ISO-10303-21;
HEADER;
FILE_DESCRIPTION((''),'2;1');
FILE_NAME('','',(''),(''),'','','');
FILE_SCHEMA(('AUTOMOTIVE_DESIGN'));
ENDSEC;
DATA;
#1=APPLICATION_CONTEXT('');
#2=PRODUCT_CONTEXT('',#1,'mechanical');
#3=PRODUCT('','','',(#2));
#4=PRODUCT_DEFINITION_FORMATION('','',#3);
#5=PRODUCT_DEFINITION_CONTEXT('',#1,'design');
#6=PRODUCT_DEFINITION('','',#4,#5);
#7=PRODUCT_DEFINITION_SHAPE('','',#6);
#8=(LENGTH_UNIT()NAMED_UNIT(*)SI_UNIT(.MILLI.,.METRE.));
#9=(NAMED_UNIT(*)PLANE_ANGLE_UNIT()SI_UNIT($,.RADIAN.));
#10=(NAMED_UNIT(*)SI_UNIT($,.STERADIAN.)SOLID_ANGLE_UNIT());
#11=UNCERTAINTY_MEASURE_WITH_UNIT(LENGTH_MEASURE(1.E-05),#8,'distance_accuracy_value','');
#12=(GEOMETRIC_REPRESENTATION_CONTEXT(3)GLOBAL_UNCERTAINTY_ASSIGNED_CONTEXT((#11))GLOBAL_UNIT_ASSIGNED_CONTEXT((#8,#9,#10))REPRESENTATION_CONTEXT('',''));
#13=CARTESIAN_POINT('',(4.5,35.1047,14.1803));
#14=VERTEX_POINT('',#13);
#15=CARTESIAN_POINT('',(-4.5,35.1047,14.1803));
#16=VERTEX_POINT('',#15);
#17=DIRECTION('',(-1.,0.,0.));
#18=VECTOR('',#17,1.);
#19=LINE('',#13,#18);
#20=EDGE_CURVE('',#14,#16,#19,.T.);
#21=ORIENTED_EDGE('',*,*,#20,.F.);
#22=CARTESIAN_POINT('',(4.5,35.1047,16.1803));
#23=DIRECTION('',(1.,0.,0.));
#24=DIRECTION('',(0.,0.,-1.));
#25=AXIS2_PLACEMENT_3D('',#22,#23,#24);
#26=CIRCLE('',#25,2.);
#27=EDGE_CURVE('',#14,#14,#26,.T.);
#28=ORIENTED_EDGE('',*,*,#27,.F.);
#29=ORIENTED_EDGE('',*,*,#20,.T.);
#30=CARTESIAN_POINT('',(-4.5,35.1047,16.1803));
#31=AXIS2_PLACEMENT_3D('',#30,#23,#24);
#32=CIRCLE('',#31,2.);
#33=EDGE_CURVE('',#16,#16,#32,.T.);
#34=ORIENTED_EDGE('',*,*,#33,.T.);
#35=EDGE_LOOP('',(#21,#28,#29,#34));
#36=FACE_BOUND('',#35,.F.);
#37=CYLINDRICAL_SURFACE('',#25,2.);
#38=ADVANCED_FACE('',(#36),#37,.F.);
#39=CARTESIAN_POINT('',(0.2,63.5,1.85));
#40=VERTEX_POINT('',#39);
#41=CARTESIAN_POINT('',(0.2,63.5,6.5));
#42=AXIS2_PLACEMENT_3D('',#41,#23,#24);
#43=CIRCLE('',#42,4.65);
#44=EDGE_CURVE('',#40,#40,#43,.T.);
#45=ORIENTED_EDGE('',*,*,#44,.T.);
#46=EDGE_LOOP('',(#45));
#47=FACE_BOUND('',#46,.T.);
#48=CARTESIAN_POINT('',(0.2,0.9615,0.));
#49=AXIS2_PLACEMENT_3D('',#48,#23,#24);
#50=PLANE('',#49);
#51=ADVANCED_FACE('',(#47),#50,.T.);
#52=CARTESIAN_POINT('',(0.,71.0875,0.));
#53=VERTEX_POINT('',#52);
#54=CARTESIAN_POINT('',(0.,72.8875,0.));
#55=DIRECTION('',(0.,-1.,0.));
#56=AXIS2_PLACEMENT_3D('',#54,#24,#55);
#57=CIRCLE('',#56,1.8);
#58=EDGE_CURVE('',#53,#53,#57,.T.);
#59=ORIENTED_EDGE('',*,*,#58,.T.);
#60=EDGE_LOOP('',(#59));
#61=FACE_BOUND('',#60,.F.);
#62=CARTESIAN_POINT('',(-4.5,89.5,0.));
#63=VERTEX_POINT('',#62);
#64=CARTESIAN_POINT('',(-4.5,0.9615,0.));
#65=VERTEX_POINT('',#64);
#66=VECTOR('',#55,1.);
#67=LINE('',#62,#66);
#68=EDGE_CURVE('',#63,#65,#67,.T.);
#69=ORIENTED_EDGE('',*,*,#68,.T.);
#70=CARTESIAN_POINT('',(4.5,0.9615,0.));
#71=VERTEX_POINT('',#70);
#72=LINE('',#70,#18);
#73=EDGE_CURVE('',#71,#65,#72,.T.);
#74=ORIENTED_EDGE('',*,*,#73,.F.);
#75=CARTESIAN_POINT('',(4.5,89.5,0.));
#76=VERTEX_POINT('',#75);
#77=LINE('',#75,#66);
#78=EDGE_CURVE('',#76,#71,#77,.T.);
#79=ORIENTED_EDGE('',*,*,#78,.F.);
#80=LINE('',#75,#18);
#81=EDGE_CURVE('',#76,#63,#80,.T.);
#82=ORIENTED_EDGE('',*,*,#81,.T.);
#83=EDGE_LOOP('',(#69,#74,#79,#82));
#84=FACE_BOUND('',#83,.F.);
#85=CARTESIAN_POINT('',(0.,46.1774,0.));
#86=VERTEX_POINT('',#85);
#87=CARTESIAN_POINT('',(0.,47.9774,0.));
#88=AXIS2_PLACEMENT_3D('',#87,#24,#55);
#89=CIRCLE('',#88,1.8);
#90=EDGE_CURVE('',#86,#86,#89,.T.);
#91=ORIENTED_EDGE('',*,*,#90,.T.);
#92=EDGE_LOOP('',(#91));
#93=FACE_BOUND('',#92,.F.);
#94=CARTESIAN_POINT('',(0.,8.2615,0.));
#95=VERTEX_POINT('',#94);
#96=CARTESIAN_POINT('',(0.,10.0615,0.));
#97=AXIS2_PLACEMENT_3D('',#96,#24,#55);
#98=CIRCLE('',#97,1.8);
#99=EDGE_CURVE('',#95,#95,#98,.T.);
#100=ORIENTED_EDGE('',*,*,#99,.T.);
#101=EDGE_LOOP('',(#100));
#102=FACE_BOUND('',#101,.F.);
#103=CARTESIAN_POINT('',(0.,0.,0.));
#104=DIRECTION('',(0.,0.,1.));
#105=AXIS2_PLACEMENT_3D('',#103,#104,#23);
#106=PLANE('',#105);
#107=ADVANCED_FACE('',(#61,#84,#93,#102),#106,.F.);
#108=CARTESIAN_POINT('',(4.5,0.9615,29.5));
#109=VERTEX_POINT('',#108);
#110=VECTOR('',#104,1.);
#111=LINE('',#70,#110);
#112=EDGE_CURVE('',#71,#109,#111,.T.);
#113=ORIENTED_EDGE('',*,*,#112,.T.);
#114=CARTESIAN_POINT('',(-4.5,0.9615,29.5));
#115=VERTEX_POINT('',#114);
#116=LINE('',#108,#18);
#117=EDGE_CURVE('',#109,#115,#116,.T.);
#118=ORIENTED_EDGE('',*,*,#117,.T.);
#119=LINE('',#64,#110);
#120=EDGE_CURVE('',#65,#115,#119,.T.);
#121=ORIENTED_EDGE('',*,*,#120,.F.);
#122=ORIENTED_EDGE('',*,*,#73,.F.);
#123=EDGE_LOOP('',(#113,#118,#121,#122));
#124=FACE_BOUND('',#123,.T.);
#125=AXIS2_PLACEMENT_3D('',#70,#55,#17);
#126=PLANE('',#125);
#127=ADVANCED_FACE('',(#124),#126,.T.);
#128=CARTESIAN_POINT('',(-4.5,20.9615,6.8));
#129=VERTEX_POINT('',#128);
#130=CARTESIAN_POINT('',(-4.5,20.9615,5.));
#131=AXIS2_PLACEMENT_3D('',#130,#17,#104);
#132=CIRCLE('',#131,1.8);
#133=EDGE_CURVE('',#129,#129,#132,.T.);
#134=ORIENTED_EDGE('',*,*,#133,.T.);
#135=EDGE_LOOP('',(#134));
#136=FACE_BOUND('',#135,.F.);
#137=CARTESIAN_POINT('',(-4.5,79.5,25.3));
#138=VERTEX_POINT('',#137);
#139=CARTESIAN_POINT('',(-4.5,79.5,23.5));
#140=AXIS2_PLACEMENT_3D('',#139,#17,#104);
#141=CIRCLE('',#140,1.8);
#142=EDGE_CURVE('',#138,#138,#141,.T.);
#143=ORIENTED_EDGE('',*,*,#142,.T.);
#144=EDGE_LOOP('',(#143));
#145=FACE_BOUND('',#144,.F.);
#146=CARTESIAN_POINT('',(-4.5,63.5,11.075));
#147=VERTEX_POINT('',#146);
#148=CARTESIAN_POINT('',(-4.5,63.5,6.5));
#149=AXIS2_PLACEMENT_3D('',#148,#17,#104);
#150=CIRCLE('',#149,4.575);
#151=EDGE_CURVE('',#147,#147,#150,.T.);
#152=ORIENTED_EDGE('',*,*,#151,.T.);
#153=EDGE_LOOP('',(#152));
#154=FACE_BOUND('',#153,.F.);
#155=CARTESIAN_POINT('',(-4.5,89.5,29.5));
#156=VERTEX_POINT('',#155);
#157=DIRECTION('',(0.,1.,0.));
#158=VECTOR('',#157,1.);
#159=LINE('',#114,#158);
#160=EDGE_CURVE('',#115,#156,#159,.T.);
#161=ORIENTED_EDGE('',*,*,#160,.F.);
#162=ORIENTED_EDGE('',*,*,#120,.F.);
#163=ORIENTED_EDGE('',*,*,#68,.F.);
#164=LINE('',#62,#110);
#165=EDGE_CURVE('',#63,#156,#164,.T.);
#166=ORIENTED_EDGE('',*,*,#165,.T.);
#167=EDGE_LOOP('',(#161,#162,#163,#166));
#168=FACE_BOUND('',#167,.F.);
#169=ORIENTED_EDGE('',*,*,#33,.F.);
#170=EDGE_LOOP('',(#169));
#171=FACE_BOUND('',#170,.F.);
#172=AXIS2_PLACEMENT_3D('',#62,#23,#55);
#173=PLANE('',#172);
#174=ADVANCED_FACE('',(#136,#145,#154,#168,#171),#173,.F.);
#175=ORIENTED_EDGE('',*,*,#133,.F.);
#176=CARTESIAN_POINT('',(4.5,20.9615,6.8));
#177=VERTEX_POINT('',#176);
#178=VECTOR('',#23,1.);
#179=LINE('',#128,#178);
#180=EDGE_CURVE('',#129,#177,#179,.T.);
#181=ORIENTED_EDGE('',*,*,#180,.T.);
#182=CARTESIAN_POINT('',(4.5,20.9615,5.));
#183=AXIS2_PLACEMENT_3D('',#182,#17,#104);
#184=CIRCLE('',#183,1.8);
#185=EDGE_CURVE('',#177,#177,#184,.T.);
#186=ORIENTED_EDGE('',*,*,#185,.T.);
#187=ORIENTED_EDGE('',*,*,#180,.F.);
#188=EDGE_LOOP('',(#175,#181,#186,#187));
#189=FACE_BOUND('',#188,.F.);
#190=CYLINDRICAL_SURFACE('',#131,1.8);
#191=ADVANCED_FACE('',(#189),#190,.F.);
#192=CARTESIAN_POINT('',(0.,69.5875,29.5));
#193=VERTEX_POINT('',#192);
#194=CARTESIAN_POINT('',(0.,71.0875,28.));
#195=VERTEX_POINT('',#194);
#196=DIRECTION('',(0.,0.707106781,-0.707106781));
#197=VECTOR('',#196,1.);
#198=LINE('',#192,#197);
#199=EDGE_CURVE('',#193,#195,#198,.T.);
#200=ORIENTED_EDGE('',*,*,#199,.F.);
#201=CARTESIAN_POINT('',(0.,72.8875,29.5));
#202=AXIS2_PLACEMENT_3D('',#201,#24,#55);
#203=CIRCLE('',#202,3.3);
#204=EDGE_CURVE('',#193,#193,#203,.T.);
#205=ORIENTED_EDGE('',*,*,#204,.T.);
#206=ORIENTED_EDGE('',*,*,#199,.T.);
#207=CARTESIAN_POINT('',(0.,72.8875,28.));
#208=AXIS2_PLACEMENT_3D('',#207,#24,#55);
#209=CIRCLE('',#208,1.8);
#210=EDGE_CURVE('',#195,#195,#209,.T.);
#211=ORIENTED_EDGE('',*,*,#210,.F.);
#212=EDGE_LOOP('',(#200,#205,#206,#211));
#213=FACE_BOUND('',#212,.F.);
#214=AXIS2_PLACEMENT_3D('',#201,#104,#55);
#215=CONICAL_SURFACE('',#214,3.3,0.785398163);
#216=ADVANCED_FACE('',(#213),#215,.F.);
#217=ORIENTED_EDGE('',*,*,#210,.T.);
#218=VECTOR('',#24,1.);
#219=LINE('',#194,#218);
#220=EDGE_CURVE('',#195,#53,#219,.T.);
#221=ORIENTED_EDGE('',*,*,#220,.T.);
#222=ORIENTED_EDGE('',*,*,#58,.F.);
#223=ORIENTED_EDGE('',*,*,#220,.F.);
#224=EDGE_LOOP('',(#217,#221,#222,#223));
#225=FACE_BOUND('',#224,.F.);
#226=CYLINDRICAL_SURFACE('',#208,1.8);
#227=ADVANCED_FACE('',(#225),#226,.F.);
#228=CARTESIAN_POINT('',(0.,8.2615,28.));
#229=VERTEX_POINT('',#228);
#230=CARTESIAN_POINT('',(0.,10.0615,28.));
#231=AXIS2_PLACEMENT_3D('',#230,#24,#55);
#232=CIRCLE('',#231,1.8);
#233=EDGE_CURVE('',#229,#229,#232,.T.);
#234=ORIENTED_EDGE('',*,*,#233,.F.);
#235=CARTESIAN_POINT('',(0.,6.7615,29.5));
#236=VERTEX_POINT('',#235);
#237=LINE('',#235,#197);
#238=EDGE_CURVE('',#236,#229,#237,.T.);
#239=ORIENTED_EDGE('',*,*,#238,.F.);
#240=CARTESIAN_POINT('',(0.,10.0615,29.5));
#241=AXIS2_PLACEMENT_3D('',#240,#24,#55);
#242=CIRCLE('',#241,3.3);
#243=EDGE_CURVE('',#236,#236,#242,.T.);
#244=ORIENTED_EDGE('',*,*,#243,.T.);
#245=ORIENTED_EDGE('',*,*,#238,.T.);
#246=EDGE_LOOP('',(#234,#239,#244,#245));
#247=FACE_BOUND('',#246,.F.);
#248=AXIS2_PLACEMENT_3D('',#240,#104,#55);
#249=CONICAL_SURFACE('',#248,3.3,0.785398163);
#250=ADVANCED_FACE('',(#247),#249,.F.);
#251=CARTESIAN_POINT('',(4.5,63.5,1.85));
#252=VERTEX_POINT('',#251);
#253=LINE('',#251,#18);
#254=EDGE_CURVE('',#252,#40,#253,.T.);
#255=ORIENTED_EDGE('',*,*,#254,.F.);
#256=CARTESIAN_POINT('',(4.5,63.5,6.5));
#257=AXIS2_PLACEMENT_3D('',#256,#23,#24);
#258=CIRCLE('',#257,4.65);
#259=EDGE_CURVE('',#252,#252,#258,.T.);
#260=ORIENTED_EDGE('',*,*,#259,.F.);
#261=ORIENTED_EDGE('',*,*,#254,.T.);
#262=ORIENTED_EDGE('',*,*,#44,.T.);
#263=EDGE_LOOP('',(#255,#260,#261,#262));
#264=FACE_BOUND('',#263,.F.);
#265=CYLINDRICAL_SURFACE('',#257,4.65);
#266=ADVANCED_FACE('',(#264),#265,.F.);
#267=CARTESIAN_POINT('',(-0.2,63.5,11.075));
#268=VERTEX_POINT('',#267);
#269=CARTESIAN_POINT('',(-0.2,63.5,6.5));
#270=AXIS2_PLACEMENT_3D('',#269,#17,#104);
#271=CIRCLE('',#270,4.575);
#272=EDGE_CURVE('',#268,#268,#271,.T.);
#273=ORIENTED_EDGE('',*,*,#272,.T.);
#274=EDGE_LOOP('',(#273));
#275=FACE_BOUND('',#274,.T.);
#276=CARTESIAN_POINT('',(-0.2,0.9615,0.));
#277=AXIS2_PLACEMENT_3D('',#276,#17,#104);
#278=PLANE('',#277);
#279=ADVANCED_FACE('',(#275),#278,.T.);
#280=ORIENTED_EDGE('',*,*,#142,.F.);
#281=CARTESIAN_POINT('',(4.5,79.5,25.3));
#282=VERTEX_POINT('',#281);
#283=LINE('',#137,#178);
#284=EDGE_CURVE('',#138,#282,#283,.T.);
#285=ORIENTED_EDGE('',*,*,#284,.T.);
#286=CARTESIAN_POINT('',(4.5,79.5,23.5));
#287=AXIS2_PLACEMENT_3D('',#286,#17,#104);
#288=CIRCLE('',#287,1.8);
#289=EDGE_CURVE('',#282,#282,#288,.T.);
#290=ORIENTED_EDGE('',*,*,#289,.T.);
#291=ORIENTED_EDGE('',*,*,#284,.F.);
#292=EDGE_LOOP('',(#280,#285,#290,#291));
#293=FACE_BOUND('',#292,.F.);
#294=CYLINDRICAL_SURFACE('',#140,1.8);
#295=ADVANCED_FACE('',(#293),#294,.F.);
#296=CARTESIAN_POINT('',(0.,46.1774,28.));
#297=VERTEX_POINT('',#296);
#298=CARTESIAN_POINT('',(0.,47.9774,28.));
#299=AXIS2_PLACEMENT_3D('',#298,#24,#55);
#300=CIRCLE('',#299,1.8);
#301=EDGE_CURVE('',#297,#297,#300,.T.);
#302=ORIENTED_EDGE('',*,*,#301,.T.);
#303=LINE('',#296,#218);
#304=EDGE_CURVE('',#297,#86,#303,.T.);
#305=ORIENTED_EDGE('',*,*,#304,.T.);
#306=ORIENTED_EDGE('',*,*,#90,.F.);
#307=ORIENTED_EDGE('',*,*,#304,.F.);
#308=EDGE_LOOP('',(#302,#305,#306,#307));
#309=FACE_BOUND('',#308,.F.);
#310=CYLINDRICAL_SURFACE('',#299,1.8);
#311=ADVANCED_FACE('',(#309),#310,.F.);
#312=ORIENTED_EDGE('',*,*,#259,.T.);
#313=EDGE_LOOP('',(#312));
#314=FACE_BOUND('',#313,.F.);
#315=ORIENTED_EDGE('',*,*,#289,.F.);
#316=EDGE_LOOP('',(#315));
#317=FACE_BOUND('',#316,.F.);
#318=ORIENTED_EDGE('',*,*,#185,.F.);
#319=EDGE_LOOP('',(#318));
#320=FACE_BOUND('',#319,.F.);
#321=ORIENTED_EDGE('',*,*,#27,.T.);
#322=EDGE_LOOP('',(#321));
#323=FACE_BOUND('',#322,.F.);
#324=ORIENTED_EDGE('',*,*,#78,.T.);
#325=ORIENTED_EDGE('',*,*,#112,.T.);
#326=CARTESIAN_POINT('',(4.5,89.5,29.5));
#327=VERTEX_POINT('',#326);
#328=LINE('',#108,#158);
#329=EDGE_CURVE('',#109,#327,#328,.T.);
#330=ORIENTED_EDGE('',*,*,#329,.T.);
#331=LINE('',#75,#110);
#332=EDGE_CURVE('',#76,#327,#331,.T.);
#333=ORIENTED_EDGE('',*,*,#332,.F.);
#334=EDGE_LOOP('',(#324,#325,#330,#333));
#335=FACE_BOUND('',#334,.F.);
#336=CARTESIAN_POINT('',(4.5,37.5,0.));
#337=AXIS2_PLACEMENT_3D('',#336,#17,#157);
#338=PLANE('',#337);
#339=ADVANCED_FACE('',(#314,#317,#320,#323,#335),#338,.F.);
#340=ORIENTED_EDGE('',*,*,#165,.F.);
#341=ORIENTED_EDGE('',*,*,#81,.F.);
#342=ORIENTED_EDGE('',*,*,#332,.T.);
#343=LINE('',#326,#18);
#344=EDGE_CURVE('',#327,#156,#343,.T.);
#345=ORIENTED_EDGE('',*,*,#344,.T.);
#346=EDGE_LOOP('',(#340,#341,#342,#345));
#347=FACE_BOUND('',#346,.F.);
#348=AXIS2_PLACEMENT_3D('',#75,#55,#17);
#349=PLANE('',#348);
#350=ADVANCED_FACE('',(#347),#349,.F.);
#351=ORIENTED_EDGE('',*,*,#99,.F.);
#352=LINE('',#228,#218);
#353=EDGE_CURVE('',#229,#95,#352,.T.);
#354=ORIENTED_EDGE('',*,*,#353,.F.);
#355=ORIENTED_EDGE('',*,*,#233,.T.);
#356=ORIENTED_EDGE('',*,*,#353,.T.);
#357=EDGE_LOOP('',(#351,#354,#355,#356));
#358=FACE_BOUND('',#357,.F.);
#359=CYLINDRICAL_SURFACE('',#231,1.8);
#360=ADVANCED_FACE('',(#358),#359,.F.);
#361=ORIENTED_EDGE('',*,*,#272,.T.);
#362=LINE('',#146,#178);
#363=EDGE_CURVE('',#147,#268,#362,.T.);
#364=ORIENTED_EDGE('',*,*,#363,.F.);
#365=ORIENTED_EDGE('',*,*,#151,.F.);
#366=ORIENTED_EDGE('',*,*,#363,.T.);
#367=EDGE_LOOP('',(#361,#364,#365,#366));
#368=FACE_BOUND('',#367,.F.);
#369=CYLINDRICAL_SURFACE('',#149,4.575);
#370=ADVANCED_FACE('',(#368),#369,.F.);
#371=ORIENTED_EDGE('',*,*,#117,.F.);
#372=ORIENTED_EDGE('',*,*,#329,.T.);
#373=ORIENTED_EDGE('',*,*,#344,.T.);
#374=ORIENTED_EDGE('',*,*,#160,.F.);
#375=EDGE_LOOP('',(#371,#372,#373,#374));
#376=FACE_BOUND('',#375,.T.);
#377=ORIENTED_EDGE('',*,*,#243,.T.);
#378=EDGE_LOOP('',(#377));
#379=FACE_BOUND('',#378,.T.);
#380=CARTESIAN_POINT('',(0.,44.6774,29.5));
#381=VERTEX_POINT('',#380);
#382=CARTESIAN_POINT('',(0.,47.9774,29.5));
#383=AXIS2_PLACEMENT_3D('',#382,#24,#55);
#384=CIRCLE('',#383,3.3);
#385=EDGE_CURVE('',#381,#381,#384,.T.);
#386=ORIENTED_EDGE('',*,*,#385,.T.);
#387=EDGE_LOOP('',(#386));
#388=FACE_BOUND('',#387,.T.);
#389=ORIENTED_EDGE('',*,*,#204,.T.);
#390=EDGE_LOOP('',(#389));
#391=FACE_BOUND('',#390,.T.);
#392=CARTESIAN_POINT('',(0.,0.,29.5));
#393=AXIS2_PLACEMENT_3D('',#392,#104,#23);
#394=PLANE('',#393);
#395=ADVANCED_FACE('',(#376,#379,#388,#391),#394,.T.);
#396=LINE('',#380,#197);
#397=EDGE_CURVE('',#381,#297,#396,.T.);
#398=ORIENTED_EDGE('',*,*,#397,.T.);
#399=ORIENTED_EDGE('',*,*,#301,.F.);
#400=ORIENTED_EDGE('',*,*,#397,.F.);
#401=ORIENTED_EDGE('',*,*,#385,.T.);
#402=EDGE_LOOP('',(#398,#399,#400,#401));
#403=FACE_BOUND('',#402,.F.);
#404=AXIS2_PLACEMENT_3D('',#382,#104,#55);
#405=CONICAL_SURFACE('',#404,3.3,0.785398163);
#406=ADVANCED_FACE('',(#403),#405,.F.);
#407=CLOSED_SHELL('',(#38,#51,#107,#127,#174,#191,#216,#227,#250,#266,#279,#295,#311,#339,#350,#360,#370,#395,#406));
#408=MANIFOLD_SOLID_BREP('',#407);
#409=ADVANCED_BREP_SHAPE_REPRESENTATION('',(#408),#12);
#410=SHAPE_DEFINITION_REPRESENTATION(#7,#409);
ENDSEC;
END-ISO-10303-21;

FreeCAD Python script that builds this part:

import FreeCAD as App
import Part
import Sketcher


def add_polygon(sketch, points):
    """Adds a closed chain of lines whose ends are joined by coincident constraints."""
    first, n = sketch.GeometryCount, len(points)
    for a, b in zip(points, points[1:] + points[:1]):
        sketch.addGeometry(Part.LineSegment(App.Vector(*a, 0), App.Vector(*b, 0)), False)
    for i in range(n):
        sketch.addConstraint(Sketcher.Constraint("Coincident", first + i, 2, first + (i + 1) % n, 1))

doc = App.newDocument("Part")
params = doc.addObject("Spreadsheet::Sheet", "Params")
for row, (alias, value) in enumerate([
    ("sketch1_width", "9 mm"),
    ("pad1_length", "29.5 mm"),
    ("sketch2_diameter", "4 mm"),
    ("sketch3_diameter", "9.3 mm"),
    ("pocket2_length", "4.3 mm"),
    ("sketch4_diameter", "9.15 mm"),
    ("pocket3_length", "4.3 mm"),
    ("sketch5_diameter", "3.6 mm"),
    ("pocket4_length", "9 mm"),
    ("sketch6_diameter", "3.6 mm"),
    ("hole_diameter", "3.6 mm"),
    ("hole_csink_diameter", "6.6 mm"),
], start=1):
    params.set(f"A{row}", alias)
    params.set(f"B{row}", "=" + value)
    params.setAlias(f"B{row}", alias)

body = doc.addObject("PartDesign::Body", "Body")

# Sketch on XY plane
sketch1 = body.newObject("Sketcher::SketchObject", "Sketch")
sketch1.AttachmentSupport = (doc.getObject("XY_Plane"), [""])
sketch1.MapMode = "FlatFace"
add_polygon(sketch1, [(-4, 90), (-4, 1), (4, 1), (4, 90)])  # lines 0-3
sketch1.addConstraint([
    Sketcher.Constraint("Vertical", 0),
    Sketcher.Constraint("Horizontal", 1),
    Sketcher.Constraint("Vertical", 2),
    Sketcher.Constraint("Horizontal", 3),
    Sketcher.Constraint("DistanceX", 1, 1, 1, 2, 9.0),
    Sketcher.Constraint("DistanceX", 0, 2, -1, 1, 4.5),
    Sketcher.Constraint("DistanceY", -1, 1, 2, 2, 89.5),
    Sketcher.Constraint("DistanceY", 0, 2, 0, 1, 88.5385),
])
sketch1.setExpression("Constraints[8]", "Params.sketch1_width")
pad1 = body.newObject("PartDesign::Pad", "Pad")
pad1.Profile = sketch1
pad1.setExpression("Length", "Params.pad1_length")

# Sketch on YZ plane
sketch2 = body.newObject("Sketcher::SketchObject", "Sketch001")
sketch2.AttachmentSupport = (doc.getObject("YZ_Plane"), [""])
sketch2.MapMode = "FlatFace"
sketch2.AttachmentOffset = App.Placement(App.Vector(0, 0, 4.5), App.Rotation())
sketch2.addGeometry(Part.Circle(App.Vector(35.1, 16.2, 0), App.Vector(0, 0, 1), 2), False)
sketch2.addConstraint([
    Sketcher.Constraint("Diameter", 0, 4.0),
    Sketcher.Constraint("DistanceX", -1, 1, 0, 3, 35.1047),
    Sketcher.Constraint("DistanceY", -1, 1, 0, 3, 16.1803),
])
sketch2.setExpression("Constraints[0]", "Params.sketch2_diameter")
pocket1 = body.newObject("PartDesign::Pocket", "Pocket")
pocket1.Profile = sketch2
pocket1.Type = "UpToFirst"

# Sketch on YZ plane
sketch3 = body.newObject("Sketcher::SketchObject", "Sketch002")
sketch3.AttachmentSupport = (doc.getObject("YZ_Plane"), [""])
sketch3.MapMode = "FlatFace"
sketch3.AttachmentOffset = App.Placement(App.Vector(0, 0, 4.5), App.Rotation())
sketch3.addGeometry(Part.Circle(App.Vector(63.5, 6.5, 0), App.Vector(0, 0, 1), 4.7), False)
sketch3.addConstraint([
    Sketcher.Constraint("Diameter", 0, 9.3),
    Sketcher.Constraint("DistanceX", -1, 1, 0, 3, 63.5),
    Sketcher.Constraint("DistanceY", -1, 1, 0, 3, 6.5),
])
sketch3.setExpression("Constraints[0]", "Params.sketch3_diameter")
pocket2 = body.newObject("PartDesign::Pocket", "Pocket001")
pocket2.Profile = sketch3
pocket2.setExpression("Length", "Params.pocket2_length")

# Sketch on YZ plane
sketch4 = body.newObject("Sketcher::SketchObject", "Sketch003")
sketch4.AttachmentSupport = (doc.getObject("YZ_Plane"), [""])
sketch4.MapMode = "FlatFace"
sketch4.AttachmentOffset = App.Placement(App.Vector(0, 0, -4.5), App.Rotation())
sketch4.addGeometry(Part.Circle(App.Vector(63.5, 6.5, 0), App.Vector(0, 0, 1), 4.6), False)
sketch4.addConstraint([
    Sketcher.Constraint("Diameter", 0, 9.15),
    Sketcher.Constraint("DistanceX", -1, 1, 0, 3, 63.5),
    Sketcher.Constraint("DistanceY", -1, 1, 0, 3, 6.5),
])
sketch4.setExpression("Constraints[0]", "Params.sketch4_diameter")
pocket3 = body.newObject("PartDesign::Pocket", "Pocket002")
pocket3.Profile = sketch4
pocket3.setExpression("Length", "Params.pocket3_length")
pocket3.Reversed = True

# Sketch on YZ plane
sketch5 = body.newObject("Sketcher::SketchObject", "Sketch004")
sketch5.AttachmentSupport = (doc.getObject("YZ_Plane"), [""])
sketch5.MapMode = "FlatFace"
sketch5.AttachmentOffset = App.Placement(App.Vector(0, 0, -4.5), App.Rotation())
sketch5.addGeometry([
    Part.Circle(App.Vector(21, 5, 0), App.Vector(0, 0, 1), 1.8),
    Part.Circle(App.Vector(79.5, 23.5, 0), App.Vector(0, 0, 1), 1.8),
], False)
sketch5.addConstraint([
    Sketcher.Constraint("Equal", 0, 1),
    Sketcher.Constraint("Diameter", 0, 3.6),
    Sketcher.Constraint("DistanceY", -1, 1, 0, 3, 5.0),
    Sketcher.Constraint("DistanceX", -1, 1, 1, 3, 79.5),
    Sketcher.Constraint("DistanceY", -1, 1, 1, 3, 23.5),
    Sketcher.Constraint("DistanceX", -1, 1, 0, 3, 20.9615),
])
sketch5.setExpression("Constraints[1]", "Params.sketch5_diameter")
pocket4 = body.newObject("PartDesign::Pocket", "Pocket003")
pocket4.Profile = sketch5
pocket4.setExpression("Length", "Params.pocket4_length")
pocket4.Reversed = True

# Sketch on XY plane
sketch6 = body.newObject("Sketcher::SketchObject", "Sketch005")
sketch6.AttachmentSupport = (doc.getObject("XY_Plane"), [""])
sketch6.MapMode = "FlatFace"
sketch6.AttachmentOffset = App.Placement(App.Vector(0, 0, 29.5), App.Rotation())
sketch6.addGeometry([
    Part.Circle(App.Vector(0, 10.1, 0), App.Vector(0, 0, 1), 1.8),
    Part.Circle(App.Vector(0, 48, 0), App.Vector(0, 0, 1), 1.8),
    Part.Circle(App.Vector(0, 72.9, 0), App.Vector(0, 0, 1), 1.8),
], False)
sketch6.addConstraint([
    Sketcher.Constraint("Equal", 0, 1),
    Sketcher.Constraint("Equal", 1, 2),
    Sketcher.Constraint("PointOnObject", 0, 3, -2),
    Sketcher.Constraint("PointOnObject", 1, 3, -2),
    Sketcher.Constraint("PointOnObject", 2, 3, -2),
    Sketcher.Constraint("Diameter", 0, 3.6),
    Sketcher.Constraint("DistanceY", 1, 3, 2, 3, 24.91),
    Sketcher.Constraint("DistanceY", 0, 3, 1, 3, 37.916),
    Sketcher.Constraint("DistanceY", -1, 1, 0, 3, 10.0615),
])
sketch6.setExpression("Constraints[5]", "Params.sketch6_diameter")
doc.recompute()
hole = body.newObject("PartDesign::Hole", "Hole")
hole.Profile = sketch6
hole.ThreadType = "None"
hole.setExpression("Diameter", "Params.hole_diameter")
hole.DepthType = "ThroughAll"
hole.HoleCutType = "Countersink"
hole.setExpression("HoleCutDiameter", "Params.hole_csink_diameter")
hole.HoleCutCountersinkAngle = 90

doc.recompute()
